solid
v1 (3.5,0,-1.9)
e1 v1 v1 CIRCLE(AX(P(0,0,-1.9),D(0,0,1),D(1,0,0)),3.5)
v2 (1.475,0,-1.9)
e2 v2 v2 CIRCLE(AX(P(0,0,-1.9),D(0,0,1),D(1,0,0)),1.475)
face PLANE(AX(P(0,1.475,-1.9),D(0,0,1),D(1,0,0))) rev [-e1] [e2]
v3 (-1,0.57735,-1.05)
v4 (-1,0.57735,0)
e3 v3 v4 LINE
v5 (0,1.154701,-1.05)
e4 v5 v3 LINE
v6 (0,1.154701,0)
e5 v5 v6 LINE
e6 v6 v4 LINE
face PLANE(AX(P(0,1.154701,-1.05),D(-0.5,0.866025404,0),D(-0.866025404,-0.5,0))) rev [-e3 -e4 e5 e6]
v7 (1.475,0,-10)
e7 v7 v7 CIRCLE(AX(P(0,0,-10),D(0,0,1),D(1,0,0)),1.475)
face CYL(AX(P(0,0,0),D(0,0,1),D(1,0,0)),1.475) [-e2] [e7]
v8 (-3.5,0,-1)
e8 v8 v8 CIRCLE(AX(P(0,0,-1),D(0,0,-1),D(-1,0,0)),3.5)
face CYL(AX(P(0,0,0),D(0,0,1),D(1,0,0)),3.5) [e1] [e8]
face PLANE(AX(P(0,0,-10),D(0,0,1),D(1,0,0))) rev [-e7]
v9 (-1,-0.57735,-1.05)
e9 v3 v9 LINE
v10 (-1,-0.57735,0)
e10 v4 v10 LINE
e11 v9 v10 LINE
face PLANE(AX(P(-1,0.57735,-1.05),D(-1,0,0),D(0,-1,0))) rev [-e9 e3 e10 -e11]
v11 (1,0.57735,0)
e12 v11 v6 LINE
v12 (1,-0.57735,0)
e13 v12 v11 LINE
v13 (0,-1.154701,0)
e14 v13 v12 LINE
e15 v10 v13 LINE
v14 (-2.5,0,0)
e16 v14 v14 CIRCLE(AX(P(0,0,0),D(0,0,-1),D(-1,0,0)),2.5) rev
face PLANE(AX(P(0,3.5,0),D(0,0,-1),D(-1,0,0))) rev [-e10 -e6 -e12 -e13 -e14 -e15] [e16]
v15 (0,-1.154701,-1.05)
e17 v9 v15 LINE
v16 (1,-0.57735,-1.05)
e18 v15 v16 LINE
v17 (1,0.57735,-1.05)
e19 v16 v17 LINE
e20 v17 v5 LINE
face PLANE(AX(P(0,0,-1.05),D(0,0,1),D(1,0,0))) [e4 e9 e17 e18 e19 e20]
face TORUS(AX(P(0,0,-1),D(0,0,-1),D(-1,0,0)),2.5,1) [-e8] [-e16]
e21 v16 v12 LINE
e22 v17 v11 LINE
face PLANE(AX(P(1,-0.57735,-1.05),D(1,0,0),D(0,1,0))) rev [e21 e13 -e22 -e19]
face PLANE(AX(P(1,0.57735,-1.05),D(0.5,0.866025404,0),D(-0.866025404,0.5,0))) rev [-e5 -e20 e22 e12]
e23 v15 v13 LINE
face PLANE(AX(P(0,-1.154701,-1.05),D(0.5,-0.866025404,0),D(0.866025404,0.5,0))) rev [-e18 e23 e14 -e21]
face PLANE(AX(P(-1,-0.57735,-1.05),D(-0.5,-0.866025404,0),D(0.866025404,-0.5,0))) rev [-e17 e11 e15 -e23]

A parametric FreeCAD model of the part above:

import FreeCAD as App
import Part
import Sketcher

V = App.Vector
Q = App.Units.Quantity


def edges_at(feature, points):
    """Names of the edges that pass closest to the given points."""
    edges = feature.Shape.Edges
    near = lambda p: min(range(len(edges)), key=lambda i: edges[i].distToShape(Part.Vertex(*p))[0])
    return sorted({f"Edge{near(p) + 1}" for p in points})


def add_polygon(sketch, points):
    """Adds a closed chain of lines whose ends are joined by coincident constraints."""
    first, n = sketch.GeometryCount, len(points)
    for a, b in zip(points, points[1:] + points[:1]):
        sketch.addGeometry(Part.LineSegment(App.Vector(*a, 0), App.Vector(*b, 0)), False)
    for i in range(n):
        sketch.addConstraint(Sketcher.Constraint("Coincident", first + i, 2, first + (i + 1) % n, 1))

doc = App.newDocument("Part")
body = doc.addObject("PartDesign::Body", "Body")

# Sketch on YZ plane
sketch1 = doc.addObject("Sketcher::SketchObject", "Sketch")
body.addObject(sketch1)
sketch1.AttachmentSupport = (doc.YZ_Plane, [""])
sketch1.MapMode = "FlatFace"
add_polygon(sketch1, [(1.5, -1.9), (3.5, -1.9), (3.5, 0), (0, 0), (0, -10), (1.5, -10)])  # lines 0-5
sketch1.addConstraint([
    Sketcher.Constraint("Horizontal", 0),
    Sketcher.Constraint("Vertical", 1),
    Sketcher.Constraint("Horizontal", 2),
    Sketcher.Constraint("Vertical", 3),
    Sketcher.Constraint("Horizontal", 4),
    Sketcher.Constraint("Vertical", 5),
    Sketcher.Constraint("Coincident", 2, 2, -1, 1),
    Sketcher.Constraint("DistanceY", 3, 2, 3, 1, 10.0),
    Sketcher.Constraint("DistanceX", 2, 2, 2, 1, 3.5),
    Sketcher.Constraint("DistanceY", 1, 1, 1, 2, 1.9),
    Sketcher.Constraint("DistanceX", 0, 1, 0, 2, 2.025),
])
revolution = doc.addObject("PartDesign::Revolution", "Revolution")
body.addObject(revolution)
revolution.Profile = sketch1
revolution.ReferenceAxis = (sketch1, ["V_Axis"])
revolution.Angle = 360
doc.recompute()

fillet = doc.addObject("PartDesign::Fillet", "Fillet")
body.addObject(fillet)
fillet.Base = (revolution, edges_at(revolution, [(-3.5, 0, 0)]))
fillet.Radius = 1

# Sketch on XY plane
sketch2 = doc.addObject("Sketcher::SketchObject", "Sketch001")
body.addObject(sketch2)
sketch2.AttachmentSupport = (doc.XY_Plane, [""])
sketch2.MapMode = "FlatFace"
add_polygon(sketch2, [(0, 1.2), (-1, 0.6), (-1, -0.6), (0, -1.2), (1, -0.6), (1, 0.6)])  # lines 0-5
sketch2.addConstraint([
    Sketcher.Constraint("Vertical", 1),
    Sketcher.Constraint("Vertical", 4),
    Sketcher.Constraint("Symmetric", 0, 2, 3, 2, -1, 1),
    Sketcher.Constraint("Symmetric", 2, 2, 5, 2, -1, 1),
    Sketcher.Constraint("PointOnObject", 2, 2, -2),
    Sketcher.Constraint("Parallel", 2, 5),
    Sketcher.Constraint("Horizontal", 1, 2, 3, 2),
    Sketcher.Constraint("Angle", 0, Q("-150 deg")),
    Sketcher.Constraint("DistanceX", 0, 2, -1, 1, 1.0),
    Sketcher.Constraint("DistanceY", 1, 2, 1, 1, 1.154701),
])
pocket1 = doc.addObject("PartDesign::Pocket", "Pocket")
body.addObject(pocket1)
pocket1.Profile = sketch2
pocket1.Length = 1.05

doc.recompute()
